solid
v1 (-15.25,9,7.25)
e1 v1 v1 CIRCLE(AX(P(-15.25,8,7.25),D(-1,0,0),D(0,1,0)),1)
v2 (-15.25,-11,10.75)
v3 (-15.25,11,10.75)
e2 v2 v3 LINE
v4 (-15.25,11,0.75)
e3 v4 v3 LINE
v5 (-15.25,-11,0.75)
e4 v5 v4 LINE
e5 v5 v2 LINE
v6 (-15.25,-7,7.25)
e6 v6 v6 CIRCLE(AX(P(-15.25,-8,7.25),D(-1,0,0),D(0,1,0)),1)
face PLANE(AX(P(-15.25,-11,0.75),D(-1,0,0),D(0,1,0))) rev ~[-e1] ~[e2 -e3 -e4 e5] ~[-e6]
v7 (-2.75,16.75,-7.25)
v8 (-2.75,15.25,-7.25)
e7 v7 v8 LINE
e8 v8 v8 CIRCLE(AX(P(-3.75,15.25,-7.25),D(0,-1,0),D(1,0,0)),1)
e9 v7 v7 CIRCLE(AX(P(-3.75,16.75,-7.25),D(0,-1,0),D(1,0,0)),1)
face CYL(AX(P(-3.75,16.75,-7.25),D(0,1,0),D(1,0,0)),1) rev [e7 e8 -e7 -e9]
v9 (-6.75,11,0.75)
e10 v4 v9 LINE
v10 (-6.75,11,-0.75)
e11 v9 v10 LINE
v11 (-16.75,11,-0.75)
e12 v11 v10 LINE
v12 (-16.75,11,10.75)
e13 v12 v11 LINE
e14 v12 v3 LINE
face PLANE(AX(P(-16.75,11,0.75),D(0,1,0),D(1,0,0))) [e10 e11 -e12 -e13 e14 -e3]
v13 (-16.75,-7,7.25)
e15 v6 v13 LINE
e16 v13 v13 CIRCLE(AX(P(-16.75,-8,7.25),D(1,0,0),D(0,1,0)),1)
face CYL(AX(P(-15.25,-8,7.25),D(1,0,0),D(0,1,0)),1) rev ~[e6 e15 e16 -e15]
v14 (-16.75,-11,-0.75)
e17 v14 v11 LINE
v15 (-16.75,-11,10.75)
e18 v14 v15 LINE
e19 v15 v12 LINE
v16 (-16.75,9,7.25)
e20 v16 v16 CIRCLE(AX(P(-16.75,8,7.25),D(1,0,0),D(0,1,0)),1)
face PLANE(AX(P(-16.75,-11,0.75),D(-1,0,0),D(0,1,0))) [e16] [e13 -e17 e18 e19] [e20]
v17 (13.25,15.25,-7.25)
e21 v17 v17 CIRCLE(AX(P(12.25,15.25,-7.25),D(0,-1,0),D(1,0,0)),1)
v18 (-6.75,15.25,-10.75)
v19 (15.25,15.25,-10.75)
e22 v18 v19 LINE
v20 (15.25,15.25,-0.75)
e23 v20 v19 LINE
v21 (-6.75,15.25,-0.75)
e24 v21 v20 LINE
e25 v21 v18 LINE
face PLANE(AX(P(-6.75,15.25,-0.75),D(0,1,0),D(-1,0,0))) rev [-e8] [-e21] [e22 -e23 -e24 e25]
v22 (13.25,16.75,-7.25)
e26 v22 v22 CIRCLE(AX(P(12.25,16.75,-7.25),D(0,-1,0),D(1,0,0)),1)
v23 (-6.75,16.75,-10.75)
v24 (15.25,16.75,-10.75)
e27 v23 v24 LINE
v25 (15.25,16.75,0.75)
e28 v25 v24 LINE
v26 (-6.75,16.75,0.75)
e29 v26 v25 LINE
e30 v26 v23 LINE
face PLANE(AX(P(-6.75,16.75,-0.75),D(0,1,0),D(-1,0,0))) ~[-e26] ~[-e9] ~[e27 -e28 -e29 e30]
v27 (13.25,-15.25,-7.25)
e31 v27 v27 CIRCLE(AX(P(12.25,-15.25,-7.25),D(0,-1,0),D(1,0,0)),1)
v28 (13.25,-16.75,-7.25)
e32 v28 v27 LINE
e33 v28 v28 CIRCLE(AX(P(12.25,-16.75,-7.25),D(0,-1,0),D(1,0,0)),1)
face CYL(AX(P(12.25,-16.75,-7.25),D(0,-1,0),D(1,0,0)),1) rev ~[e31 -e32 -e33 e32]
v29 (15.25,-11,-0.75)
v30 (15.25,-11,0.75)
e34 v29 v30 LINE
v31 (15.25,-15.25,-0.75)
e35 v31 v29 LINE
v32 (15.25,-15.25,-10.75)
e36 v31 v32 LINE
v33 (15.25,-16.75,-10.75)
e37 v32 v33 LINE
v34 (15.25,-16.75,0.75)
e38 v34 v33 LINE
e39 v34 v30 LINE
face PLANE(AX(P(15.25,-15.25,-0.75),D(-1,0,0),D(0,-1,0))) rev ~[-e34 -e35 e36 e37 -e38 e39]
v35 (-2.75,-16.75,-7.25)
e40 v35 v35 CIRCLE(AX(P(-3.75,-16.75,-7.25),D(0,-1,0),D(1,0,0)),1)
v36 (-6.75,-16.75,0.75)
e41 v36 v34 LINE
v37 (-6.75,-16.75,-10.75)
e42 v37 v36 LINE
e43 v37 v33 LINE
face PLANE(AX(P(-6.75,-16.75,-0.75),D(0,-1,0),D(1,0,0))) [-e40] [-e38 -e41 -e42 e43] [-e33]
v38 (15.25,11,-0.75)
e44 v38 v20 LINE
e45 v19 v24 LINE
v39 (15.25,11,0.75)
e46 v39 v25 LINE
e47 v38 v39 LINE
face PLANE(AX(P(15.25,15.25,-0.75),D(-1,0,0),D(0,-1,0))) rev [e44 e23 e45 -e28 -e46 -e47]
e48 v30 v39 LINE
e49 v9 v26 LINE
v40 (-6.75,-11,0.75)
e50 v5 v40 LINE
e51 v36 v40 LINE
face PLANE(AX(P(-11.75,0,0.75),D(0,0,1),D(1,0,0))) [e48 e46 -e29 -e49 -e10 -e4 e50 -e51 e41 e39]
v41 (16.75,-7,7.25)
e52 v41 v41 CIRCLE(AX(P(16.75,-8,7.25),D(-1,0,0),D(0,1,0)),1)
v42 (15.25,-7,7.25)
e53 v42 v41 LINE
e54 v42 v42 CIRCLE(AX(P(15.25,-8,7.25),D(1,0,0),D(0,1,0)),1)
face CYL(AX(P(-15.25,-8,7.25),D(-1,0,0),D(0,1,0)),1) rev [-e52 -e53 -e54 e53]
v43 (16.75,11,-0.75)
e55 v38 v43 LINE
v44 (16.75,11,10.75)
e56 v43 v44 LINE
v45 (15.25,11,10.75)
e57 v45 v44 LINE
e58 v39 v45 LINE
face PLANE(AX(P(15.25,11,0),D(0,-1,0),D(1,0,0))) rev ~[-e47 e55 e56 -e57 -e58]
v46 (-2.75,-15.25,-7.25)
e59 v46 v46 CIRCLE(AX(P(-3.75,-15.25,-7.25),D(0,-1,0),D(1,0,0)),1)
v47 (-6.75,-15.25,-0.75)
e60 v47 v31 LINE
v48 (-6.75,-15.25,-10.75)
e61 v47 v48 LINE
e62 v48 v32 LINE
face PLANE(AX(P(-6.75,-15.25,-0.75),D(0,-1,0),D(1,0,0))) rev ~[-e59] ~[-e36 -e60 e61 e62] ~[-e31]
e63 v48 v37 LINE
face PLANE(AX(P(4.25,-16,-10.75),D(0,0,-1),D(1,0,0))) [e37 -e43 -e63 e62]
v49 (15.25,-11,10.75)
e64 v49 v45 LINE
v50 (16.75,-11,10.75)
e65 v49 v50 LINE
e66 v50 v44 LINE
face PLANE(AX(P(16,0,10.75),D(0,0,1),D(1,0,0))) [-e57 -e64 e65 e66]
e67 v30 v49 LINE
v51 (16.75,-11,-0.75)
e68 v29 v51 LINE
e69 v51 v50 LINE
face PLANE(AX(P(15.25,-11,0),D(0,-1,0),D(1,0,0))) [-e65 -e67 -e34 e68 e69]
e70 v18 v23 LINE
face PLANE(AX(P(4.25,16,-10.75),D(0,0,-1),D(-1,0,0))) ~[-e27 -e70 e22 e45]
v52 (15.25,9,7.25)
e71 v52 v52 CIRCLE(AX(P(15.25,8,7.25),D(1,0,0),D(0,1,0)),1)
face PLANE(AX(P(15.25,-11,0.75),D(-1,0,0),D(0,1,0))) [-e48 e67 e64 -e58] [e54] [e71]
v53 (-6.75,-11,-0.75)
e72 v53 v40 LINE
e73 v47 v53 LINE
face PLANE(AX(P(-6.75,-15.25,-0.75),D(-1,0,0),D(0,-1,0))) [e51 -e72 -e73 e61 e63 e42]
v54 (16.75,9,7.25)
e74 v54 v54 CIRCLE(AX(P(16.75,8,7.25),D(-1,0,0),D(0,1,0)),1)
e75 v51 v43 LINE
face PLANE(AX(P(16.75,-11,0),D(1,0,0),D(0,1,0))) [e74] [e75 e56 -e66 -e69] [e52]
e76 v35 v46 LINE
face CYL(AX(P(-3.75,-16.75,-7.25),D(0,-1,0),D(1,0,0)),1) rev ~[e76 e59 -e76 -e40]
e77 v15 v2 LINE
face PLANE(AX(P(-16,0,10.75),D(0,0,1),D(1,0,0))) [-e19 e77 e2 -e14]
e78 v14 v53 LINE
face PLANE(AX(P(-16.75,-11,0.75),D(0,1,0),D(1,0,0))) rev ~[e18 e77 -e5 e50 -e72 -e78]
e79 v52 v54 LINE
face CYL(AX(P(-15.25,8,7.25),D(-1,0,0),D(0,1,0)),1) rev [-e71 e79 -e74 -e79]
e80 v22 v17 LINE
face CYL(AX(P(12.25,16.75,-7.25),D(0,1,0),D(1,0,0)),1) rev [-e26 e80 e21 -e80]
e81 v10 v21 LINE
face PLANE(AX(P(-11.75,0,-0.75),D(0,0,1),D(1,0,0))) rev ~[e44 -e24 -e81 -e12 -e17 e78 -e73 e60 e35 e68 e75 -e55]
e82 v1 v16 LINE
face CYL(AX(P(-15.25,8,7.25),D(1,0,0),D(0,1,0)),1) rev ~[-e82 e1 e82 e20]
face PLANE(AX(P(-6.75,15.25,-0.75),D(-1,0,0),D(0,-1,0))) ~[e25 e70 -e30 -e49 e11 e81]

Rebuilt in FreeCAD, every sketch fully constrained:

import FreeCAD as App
import Part
import Sketcher
Q = App.Units.Quantity


def add_polygon(sketch, points):
    """Adds a closed chain of lines whose ends are joined by coincident constraints."""
    first, n = sketch.GeometryCount, len(points)
    for a, b in zip(points, points[1:] + points[:1]):
        sketch.addGeometry(Part.LineSegment(App.Vector(*a, 0), App.Vector(*b, 0)), False)
    for i in range(n):
        sketch.addConstraint(Sketcher.Constraint("Coincident", first + i, 2, first + (i + 1) % n, 1))

doc = App.newDocument("Part")
params = doc.addObject("Spreadsheet::Sheet", "Params")
for row, (alias, value) in enumerate([
    ("sketch1_width", "10 mm"),
    ("sketch1_width2", "22 mm"),
    ("sketch1_width3", "1.5 mm"),
    ("sketch1_height", "5.75 mm"),
    ("pad1_length", "0.75 mm"),
    ("pad1_length2", "0.75 mm"),
    ("sketch2_height", "22 mm"),
    ("sketch2_width", "1.5 mm"),
    ("pad2_length", "10 mm"),
    ("sketch3_width", "22 mm"),
    ("sketch3_height", "1.5 mm"),
    ("pad3_length", "10 mm"),
    ("sketch4_diameter", "2 mm"),
    ("sketch5_diameter", "2 mm"),
], start=1):
    params.set(f"A{row}", alias)
    params.set(f"B{row}", "=" + value)
    params.setAlias(f"B{row}", alias)

body = doc.addObject("PartDesign::Body", "Body")

# Sketch on XY plane
sketch1 = body.newObject("Sketcher::SketchObject", "Sketch")
sketch1.AttachmentSupport = (doc.getObject("XY_Plane"), [""])
sketch1.MapMode = "FlatFace"
add_polygon(sketch1, [(-16.8, 11), (-16.8, -11), (-6.8, -11), (-6.8, -16.8), (15.2, -16.8), (15.2, -11), (16.8, -11), (16.8, 11), (15.2, 11), (15.2, 16.8), (-6.8, 16.8), (-6.8, 11)])  # lines 0-11
sketch1.addConstraint([
    Sketcher.Constraint("Vertical", 0),
    Sketcher.Constraint("Horizontal", 1),
    Sketcher.Constraint("Vertical", 2),
    Sketcher.Constraint("Horizontal", 3),
    Sketcher.Constraint("Vertical", 4),
    Sketcher.Constraint("Horizontal", 5),
    Sketcher.Constraint("Vertical", 6),
    Sketcher.Constraint("Horizontal", 7),
    Sketcher.Constraint("Vertical", 8),
    Sketcher.Constraint("Horizontal", 9),
    Sketcher.Constraint("Vertical", 10),
    Sketcher.Constraint("Horizontal", 11),
    Sketcher.Constraint("Symmetric", 0, 2, 6, 2, -1, 1),
    Sketcher.Constraint("Symmetric", 4, 2, 7, 2, -1),
    Sketcher.Constraint("Symmetric", 2, 2, 9, 2, -1),
    Sketcher.Constraint("Horizontal", 7, 2, 10, 2),
    Sketcher.Constraint("Equal", 9, 0),
    Sketcher.Constraint("DistanceX", 1, 1, 1, 2, Q("10 mm")),
    Sketcher.Constraint("DistanceX", 3, 1, 3, 2, Q("22 mm")),
    Sketcher.Constraint("DistanceX", 5, 1, 5, 2, Q("1.5 mm")),
    Sketcher.Constraint("DistanceY", 2, 2, 2, 1, Q("5.75 mm")),
])
sketch1.setExpression("Constraints[29]", "Params.sketch1_width")
sketch1.setExpression("Constraints[30]", "Params.sketch1_width2")
sketch1.setExpression("Constraints[31]", "Params.sketch1_width3")
sketch1.setExpression("Constraints[32]", "Params.sketch1_height")
pad1 = body.newObject("PartDesign::Pad", "Pad")
pad1.Profile = sketch1
pad1.Type = "TwoLengths"
pad1.setExpression("Length", "Params.pad1_length")
pad1.setExpression("Length2", "Params.pad1_length2")

# Sketch on XY plane
sketch2 = body.newObject("Sketcher::SketchObject", "Sketch001")
sketch2.AttachmentSupport = (doc.getObject("XY_Plane"), [""])
sketch2.MapMode = "FlatFace"
sketch2.AttachmentOffset = App.Placement(App.Vector(0, 0, 0.75), App.Rotation())
add_polygon(sketch2, [(-16.8, 11), (-16.8, -11), (-15.2, -11), (-15.2, 11)])  # lines 0-3
add_polygon(sketch2, [(15.2, 11), (15.2, -11), (16.8, -11), (16.8, 11)])  # lines 4-7
sketch2.addConstraint([
    Sketcher.Constraint("Vertical", 0),
    Sketcher.Constraint("Horizontal", 1),
    Sketcher.Constraint("Vertical", 2),
    Sketcher.Constraint("Horizontal", 3),
    Sketcher.Constraint("Vertical", 4),
    Sketcher.Constraint("Horizontal", 5),
    Sketcher.Constraint("Vertical", 6),
    Sketcher.Constraint("Horizontal", 7),
    Sketcher.Constraint("Symmetric", 2, 2, 4, 2, -1, 1),
    Sketcher.Constraint("Symmetric", 0, 2, 6, 2, -1, 1),
    Sketcher.Constraint("Horizontal", 1, 2, 4, 2),
    Sketcher.Constraint("DistanceY", 0, 2, 0, 1, Q("22 mm")),
    Sketcher.Constraint("DistanceX", 1, 1, 1, 2, Q("1.5 mm")),
    Sketcher.Constraint("DistanceX", 0, 2, 4, 2, Q("32 mm")),
])
sketch2.setExpression("Constraints[19]", "Params.sketch2_height")
sketch2.setExpression("Constraints[20]", "Params.sketch2_width")
pad2 = body.newObject("PartDesign::Pad", "Pad001")
pad2.Profile = sketch2
pad2.setExpression("Length", "Params.pad2_length")

# Sketch on XY plane
sketch3 = body.newObject("Sketcher::SketchObject", "Sketch002")
sketch3.AttachmentSupport = (doc.getObject("XY_Plane"), [""])
sketch3.MapMode = "FlatFace"
sketch3.AttachmentOffset = App.Placement(App.Vector(0, 0, -0.75), App.Rotation())
add_polygon(sketch3, [(-6.8, -16.8), (-6.8, -15.2), (15.2, -15.2), (15.2, -16.8)])  # lines 0-3
sketch3.addConstraint([
    Sketcher.Constraint("Vertical", 0),
    Sketcher.Constraint("Horizontal", 1),
    Sketcher.Constraint("Vertical", 2),
    Sketcher.Constraint("Horizontal", 3),
    Sketcher.Constraint("DistanceX", 1, 1, 1, 2, Q("22 mm")),
    Sketcher.Constraint("DistanceY", 0, 1, 0, 2, Q("1.5 mm")),
    Sketcher.Constraint("DistanceX", 0, 2, -1, 1, Q("6.75 mm")),
    Sketcher.Constraint("DistanceY", 0, 2, -1, 1, Q("15.25 mm")),
])
sketch3.setExpression("Constraints[8]", "Params.sketch3_width")
sketch3.setExpression("Constraints[9]", "Params.sketch3_height")
pad3 = body.newObject("PartDesign::Pad", "Pad002")
pad3.Profile = sketch3
pad3.setExpression("Length", "Params.pad3_length")
pad3.Reversed = True

# Sketch on YZ plane
sketch4 = body.newObject("Sketcher::SketchObject", "Sketch003")
sketch4.AttachmentSupport = (doc.getObject("YZ_Plane"), [""])
sketch4.MapMode = "FlatFace"
sketch4.AttachmentOffset = App.Placement(App.Vector(0, 0, -15.25), App.Rotation())
sketch4.addGeometry([
    Part.Circle(App.Vector(-8, 7.2, 0), App.Vector(0, 0, 1), 1),
    Part.Circle(App.Vector(8, 7.2, 0), App.Vector(0, 0, 1), 1),
], False)
sketch4.addConstraint([
    Sketcher.Constraint("Equal", 0, 1),
    Sketcher.Constraint("Symmetric", 0, 3, 1, 3, -2),
    Sketcher.Constraint("Diameter", 0, Q("2 mm")),
    Sketcher.Constraint("DistanceX", 0, 3, -1, 1, Q("8 mm")),
    Sketcher.Constraint("DistanceY", -1, 1, 0, 3, Q("7.25 mm")),
])
sketch4.setExpression("Constraints[2]", "Params.sketch4_diameter")
pocket1 = body.newObject("PartDesign::Pocket", "Pocket")
pocket1.Profile = sketch4
pocket1.Type = "ThroughAll"
pocket1.Midplane = True

# Sketch on XZ plane
sketch5 = body.newObject("Sketcher::SketchObject", "Sketch004")
sketch5.AttachmentSupport = (doc.getObject("XZ_Plane"), [""])
sketch5.MapMode = "FlatFace"
sketch5.AttachmentOffset = App.Placement(App.Vector(0, 0, 16.75), App.Rotation())
sketch5.addGeometry([
    Part.Circle(App.Vector(-3.8, -7.2, 0), App.Vector(0, 0, 1), 1),
    Part.Circle(App.Vector(12.2, -7.2, 0), App.Vector(0, 0, 1), 1),
], False)
sketch5.addConstraint([
    Sketcher.Constraint("Equal", 0, 1),
    Sketcher.Constraint("Horizontal", 0, 3, 1, 3),
    Sketcher.Constraint("Diameter", 0, Q("2 mm")),
    Sketcher.Constraint("DistanceX", 0, 3, 1, 3, Q("16 mm")),
    Sketcher.Constraint("DistanceX", 0, 3, -1, 1, Q("3.75 mm")),
    Sketcher.Constraint("DistanceY", 0, 3, -1, 1, Q("7.25 mm")),
])
sketch5.setExpression("Constraints[2]", "Params.sketch5_diameter")
pocket2 = body.newObject("PartDesign::Pocket", "Pocket001")
pocket2.Profile = sketch5
pocket2.Type = "ThroughAll"
body2 = doc.addObject("PartDesign::Body", "Body001")
doc.recompute()

body2.BaseFeature = body
doc.recompute()

mirroring = doc.addObject("Part::Mirroring", "Mirroring")
mirroring.Source = body
mirroring.Base = App.Vector(0, 0, 0)
mirroring.Normal = App.Vector(0, -1, 0)
body3 = doc.addObject("PartDesign::Body", "Body002")
body3.BaseFeature = mirroring
boolean = body2.newObject("PartDesign::Boolean", "Boolean")
boolean.Type = "Fuse"
boolean.addObjects([body3])
doc.recompute()
mirroring.Visibility = False

doc.recompute()
